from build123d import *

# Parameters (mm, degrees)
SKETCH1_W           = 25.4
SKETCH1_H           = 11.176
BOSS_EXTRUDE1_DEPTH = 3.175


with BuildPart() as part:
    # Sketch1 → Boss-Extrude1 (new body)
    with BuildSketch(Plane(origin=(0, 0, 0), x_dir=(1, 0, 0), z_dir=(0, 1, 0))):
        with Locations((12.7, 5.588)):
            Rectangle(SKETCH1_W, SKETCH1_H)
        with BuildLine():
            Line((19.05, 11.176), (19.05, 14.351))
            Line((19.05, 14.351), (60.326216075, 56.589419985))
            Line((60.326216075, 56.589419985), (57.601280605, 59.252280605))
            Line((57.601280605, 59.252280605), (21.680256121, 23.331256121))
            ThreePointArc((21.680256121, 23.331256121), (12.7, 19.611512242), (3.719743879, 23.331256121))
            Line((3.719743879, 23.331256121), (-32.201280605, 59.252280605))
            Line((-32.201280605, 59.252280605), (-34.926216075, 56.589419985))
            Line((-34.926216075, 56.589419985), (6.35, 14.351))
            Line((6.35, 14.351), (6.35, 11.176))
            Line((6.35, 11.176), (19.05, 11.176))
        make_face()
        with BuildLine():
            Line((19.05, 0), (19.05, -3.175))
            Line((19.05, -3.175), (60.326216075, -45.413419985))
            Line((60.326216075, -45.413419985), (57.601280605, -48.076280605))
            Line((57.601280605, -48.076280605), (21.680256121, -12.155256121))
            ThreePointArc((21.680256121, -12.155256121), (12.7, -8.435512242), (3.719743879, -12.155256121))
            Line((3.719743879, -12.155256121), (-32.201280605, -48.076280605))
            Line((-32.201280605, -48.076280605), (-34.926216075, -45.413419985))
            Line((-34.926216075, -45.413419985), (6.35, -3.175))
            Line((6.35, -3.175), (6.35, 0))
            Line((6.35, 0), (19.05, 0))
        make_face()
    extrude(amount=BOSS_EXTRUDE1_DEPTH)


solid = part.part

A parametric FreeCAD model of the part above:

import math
import FreeCAD as App
import Part
import Sketcher

V = App.Vector
Q = App.Units.Quantity

doc = App.newDocument("Part")
body = doc.addObject("PartDesign::Body", "Body")

# Sketch on XZ plane
sketch1 = doc.addObject("Sketcher::SketchObject", "Sketch")
body.addObject(sketch1)
sketch1.AttachmentSupport = (doc.XZ_Plane, [""])
sketch1.MapMode = "FlatFace"
sketch1.addGeometry([
    Part.LineSegment(V(0, -11.2, 0), V(0, 0, 0)),  # 0
    Part.LineSegment(V(0, 0, 0), V(6.3, 0, 0)),  # 1
    Part.LineSegment(V(6.3, 0, 0), V(6.3, 3.2, 0)),  # 2
    Part.LineSegment(V(6.3, 3.2, 0), V(-34.9, 45.4, 0)),  # 3
    Part.LineSegment(V(-34.9, 45.4, 0), V(-32.2, 48.1, 0)),  # 4
    Part.LineSegment(V(-32.2, 48.1, 0), V(3.7, 12.2, 0)),  # 5
    Part.ArcOfCircle(Part.Circle(V(12.7, 21.1, 0), V(0, 0, 1), 12.7), math.radians(-135), math.radians(-45)),  # 6
    Part.LineSegment(V(21.7, 12.2, 0), V(57.6, 48.1, 0)),  # 7
    Part.LineSegment(V(57.6, 48.1, 0), V(60.3, 45.4, 0)),  # 8
    Part.LineSegment(V(60.3, 45.4, 0), V(19.1, 3.2, 0)),  # 9
    Part.LineSegment(V(19.1, 3.2, 0), V(19.1, 0, 0)),  # 10
    Part.LineSegment(V(19.1, 0, 0), V(25.4, 0, 0)),  # 11
    Part.LineSegment(V(25.4, 0, 0), V(25.4, -11.2, 0)),  # 12
    Part.LineSegment(V(25.4, -11.2, 0), V(19.1, -11.2, 0)),  # 13
    Part.LineSegment(V(19.1, -11.2, 0), V(19.1, -14.4, 0)),  # 14
    Part.LineSegment(V(19.1, -14.4, 0), V(60.3, -56.6, 0)),  # 15
    Part.LineSegment(V(60.3, -56.6, 0), V(57.6, -59.3, 0)),  # 16
    Part.LineSegment(V(57.6, -59.3, 0), V(21.7, -23.3, 0)),  # 17
    Part.ArcOfCircle(Part.Circle(V(12.7, -32.3, 0), V(0, 0, 1), 12.7), math.radians(45), math.radians(135)),  # 18
    Part.LineSegment(V(3.7, -23.3, 0), V(-32.2, -59.3, 0)),  # 19
    Part.LineSegment(V(-32.2, -59.3, 0), V(-34.9, -56.6, 0)),  # 20
    Part.LineSegment(V(-34.9, -56.6, 0), V(6.3, -14.4, 0)),  # 21
    Part.LineSegment(V(6.3, -14.4, 0), V(6.3, -11.2, 0)),  # 22
    Part.LineSegment(V(6.3, -11.2, 0), V(0, -11.2, 0)),  # 23
], False)
sketch1.addConstraint([
    Sketcher.Constraint("Coincident", 0, 2, 1, 1),
    Sketcher.Constraint("Coincident", 1, 2, 2, 1),
    Sketcher.Constraint("Coincident", 2, 2, 3, 1),
    Sketcher.Constraint("Coincident", 3, 2, 4, 1),
    Sketcher.Constraint("Coincident", 4, 2, 5, 1),
    Sketcher.Constraint("Tangent", 5, 2, 6, 1),
    Sketcher.Constraint("Tangent", 6, 2, 7, 1),
    Sketcher.Constraint("Coincident", 7, 2, 8, 1),
    Sketcher.Constraint("Coincident", 8, 2, 9, 1),
    Sketcher.Constraint("Coincident", 9, 2, 10, 1),
    Sketcher.Constraint("Coincident", 10, 2, 11, 1),
    Sketcher.Constraint("Coincident", 11, 2, 12, 1),
    Sketcher.Constraint("Coincident", 12, 2, 13, 1),
    Sketcher.Constraint("Coincident", 13, 2, 14, 1),
    Sketcher.Constraint("Coincident", 14, 2, 15, 1),
    Sketcher.Constraint("Coincident", 15, 2, 16, 1),
    Sketcher.Constraint("Coincident", 16, 2, 17, 1),
    Sketcher.Constraint("Tangent", 17, 2, 18, 1),
    Sketcher.Constraint("Tangent", 18, 2, 19, 1),
    Sketcher.Constraint("Coincident", 19, 2, 20, 1),
    Sketcher.Constraint("Coincident", 20, 2, 21, 1),
    Sketcher.Constraint("Coincident", 21, 2, 22, 1),
    Sketcher.Constraint("Coincident", 22, 2, 23, 1),
    Sketcher.Constraint("Coincident", 23, 2, 0, 1),
    Sketcher.Constraint("Vertical", 0),
    Sketcher.Constraint("Horizontal", 1),
    Sketcher.Constraint("Vertical", 2),
    Sketcher.Constraint("Vertical", 10),
    Sketcher.Constraint("Horizontal", 11),
    Sketcher.Constraint("Vertical", 12),
    Sketcher.Constraint("Horizontal", 13),
    Sketcher.Constraint("Vertical", 14),
    Sketcher.Constraint("Vertical", 22),
    Sketcher.Constraint("Horizontal", 23),
    Sketcher.Constraint("Coincident", 0, 2, -1, 1),
    Sketcher.Constraint("Equal", 6, 18),
    Sketcher.Constraint("PointOnObject", 10, 2, -1),
    Sketcher.Constraint("Perpendicular", 3, 4),
    Sketcher.Constraint("Perpendicular", 5, 7),
    Sketcher.Constraint("Perpendicular", 8, 9),
    Sketcher.Constraint("Perpendicular", 4, 15),
    Sketcher.Constraint("Perpendicular", 15, 16),
    Sketcher.Constraint("Perpendicular", 7, 17),
    Sketcher.Constraint("Perpendicular", 17, 19),
    Sketcher.Constraint("Perpendicular", 9, 20),
    Sketcher.Constraint("Perpendicular", 20, 21),
    Sketcher.Constraint("Horizontal", 5, 2, 6, 2),
    Sketcher.Constraint("Horizontal", 4, 2, 7, 2),
    Sketcher.Constraint("Horizontal", 3, 2, 8, 2),
    Sketcher.Constraint("Horizontal", 2, 2, 9, 2),
    Sketcher.Constraint("Horizontal", 16, 2, 19, 2),
    Sketcher.Constraint("Horizontal", 15, 2, 20, 2),
    Sketcher.Constraint("Horizontal", 14, 2, 21, 2),
    Sketcher.Constraint("Horizontal", 13, 2, 22, 2),
    Sketcher.Constraint("Vertical", 6, 3, 18, 3),
    Sketcher.Constraint("Vertical", 10, 2, 13, 2),
    Sketcher.Constraint("Vertical", 8, 2, 15, 2),
    Sketcher.Constraint("Vertical", 7, 2, 16, 2),
    Sketcher.Constraint("Vertical", 3, 2, 20, 2),
    Sketcher.Constraint("Equal", 1, 11),
    Sketcher.Constraint("Equal", 10, 14),
    Sketcher.Constraint("Radius", 6, Q("0.5 in")),
    Sketcher.Constraint("Distance", 5, Q("2 in")),
    Sketcher.Constraint("DistanceX", -1, 1, 11, 2, Q("1 in")),
    Sketcher.Constraint("DistanceX", 1, 1, 1, 2, Q("0.25 in")),
    Sketcher.Constraint("DistanceY", 0, 1, 0, 2, Q("0.44 in")),
    Sketcher.Constraint("Distance", 4, Q("0.15 in")),
    Sketcher.Constraint("DistanceY", 2, 1, 2, 2, Q("0.125 in")),
    Sketcher.Constraint("DistanceY", -1, 1, 3, 2, 45.41342),
])
pad1 = doc.addObject("PartDesign::Pad", "Pad")
body.addObject(pad1)
pad1.Profile = sketch1
pad1.Length = Q("0.125 in")
pad1.Reversed = True

doc.recompute()
